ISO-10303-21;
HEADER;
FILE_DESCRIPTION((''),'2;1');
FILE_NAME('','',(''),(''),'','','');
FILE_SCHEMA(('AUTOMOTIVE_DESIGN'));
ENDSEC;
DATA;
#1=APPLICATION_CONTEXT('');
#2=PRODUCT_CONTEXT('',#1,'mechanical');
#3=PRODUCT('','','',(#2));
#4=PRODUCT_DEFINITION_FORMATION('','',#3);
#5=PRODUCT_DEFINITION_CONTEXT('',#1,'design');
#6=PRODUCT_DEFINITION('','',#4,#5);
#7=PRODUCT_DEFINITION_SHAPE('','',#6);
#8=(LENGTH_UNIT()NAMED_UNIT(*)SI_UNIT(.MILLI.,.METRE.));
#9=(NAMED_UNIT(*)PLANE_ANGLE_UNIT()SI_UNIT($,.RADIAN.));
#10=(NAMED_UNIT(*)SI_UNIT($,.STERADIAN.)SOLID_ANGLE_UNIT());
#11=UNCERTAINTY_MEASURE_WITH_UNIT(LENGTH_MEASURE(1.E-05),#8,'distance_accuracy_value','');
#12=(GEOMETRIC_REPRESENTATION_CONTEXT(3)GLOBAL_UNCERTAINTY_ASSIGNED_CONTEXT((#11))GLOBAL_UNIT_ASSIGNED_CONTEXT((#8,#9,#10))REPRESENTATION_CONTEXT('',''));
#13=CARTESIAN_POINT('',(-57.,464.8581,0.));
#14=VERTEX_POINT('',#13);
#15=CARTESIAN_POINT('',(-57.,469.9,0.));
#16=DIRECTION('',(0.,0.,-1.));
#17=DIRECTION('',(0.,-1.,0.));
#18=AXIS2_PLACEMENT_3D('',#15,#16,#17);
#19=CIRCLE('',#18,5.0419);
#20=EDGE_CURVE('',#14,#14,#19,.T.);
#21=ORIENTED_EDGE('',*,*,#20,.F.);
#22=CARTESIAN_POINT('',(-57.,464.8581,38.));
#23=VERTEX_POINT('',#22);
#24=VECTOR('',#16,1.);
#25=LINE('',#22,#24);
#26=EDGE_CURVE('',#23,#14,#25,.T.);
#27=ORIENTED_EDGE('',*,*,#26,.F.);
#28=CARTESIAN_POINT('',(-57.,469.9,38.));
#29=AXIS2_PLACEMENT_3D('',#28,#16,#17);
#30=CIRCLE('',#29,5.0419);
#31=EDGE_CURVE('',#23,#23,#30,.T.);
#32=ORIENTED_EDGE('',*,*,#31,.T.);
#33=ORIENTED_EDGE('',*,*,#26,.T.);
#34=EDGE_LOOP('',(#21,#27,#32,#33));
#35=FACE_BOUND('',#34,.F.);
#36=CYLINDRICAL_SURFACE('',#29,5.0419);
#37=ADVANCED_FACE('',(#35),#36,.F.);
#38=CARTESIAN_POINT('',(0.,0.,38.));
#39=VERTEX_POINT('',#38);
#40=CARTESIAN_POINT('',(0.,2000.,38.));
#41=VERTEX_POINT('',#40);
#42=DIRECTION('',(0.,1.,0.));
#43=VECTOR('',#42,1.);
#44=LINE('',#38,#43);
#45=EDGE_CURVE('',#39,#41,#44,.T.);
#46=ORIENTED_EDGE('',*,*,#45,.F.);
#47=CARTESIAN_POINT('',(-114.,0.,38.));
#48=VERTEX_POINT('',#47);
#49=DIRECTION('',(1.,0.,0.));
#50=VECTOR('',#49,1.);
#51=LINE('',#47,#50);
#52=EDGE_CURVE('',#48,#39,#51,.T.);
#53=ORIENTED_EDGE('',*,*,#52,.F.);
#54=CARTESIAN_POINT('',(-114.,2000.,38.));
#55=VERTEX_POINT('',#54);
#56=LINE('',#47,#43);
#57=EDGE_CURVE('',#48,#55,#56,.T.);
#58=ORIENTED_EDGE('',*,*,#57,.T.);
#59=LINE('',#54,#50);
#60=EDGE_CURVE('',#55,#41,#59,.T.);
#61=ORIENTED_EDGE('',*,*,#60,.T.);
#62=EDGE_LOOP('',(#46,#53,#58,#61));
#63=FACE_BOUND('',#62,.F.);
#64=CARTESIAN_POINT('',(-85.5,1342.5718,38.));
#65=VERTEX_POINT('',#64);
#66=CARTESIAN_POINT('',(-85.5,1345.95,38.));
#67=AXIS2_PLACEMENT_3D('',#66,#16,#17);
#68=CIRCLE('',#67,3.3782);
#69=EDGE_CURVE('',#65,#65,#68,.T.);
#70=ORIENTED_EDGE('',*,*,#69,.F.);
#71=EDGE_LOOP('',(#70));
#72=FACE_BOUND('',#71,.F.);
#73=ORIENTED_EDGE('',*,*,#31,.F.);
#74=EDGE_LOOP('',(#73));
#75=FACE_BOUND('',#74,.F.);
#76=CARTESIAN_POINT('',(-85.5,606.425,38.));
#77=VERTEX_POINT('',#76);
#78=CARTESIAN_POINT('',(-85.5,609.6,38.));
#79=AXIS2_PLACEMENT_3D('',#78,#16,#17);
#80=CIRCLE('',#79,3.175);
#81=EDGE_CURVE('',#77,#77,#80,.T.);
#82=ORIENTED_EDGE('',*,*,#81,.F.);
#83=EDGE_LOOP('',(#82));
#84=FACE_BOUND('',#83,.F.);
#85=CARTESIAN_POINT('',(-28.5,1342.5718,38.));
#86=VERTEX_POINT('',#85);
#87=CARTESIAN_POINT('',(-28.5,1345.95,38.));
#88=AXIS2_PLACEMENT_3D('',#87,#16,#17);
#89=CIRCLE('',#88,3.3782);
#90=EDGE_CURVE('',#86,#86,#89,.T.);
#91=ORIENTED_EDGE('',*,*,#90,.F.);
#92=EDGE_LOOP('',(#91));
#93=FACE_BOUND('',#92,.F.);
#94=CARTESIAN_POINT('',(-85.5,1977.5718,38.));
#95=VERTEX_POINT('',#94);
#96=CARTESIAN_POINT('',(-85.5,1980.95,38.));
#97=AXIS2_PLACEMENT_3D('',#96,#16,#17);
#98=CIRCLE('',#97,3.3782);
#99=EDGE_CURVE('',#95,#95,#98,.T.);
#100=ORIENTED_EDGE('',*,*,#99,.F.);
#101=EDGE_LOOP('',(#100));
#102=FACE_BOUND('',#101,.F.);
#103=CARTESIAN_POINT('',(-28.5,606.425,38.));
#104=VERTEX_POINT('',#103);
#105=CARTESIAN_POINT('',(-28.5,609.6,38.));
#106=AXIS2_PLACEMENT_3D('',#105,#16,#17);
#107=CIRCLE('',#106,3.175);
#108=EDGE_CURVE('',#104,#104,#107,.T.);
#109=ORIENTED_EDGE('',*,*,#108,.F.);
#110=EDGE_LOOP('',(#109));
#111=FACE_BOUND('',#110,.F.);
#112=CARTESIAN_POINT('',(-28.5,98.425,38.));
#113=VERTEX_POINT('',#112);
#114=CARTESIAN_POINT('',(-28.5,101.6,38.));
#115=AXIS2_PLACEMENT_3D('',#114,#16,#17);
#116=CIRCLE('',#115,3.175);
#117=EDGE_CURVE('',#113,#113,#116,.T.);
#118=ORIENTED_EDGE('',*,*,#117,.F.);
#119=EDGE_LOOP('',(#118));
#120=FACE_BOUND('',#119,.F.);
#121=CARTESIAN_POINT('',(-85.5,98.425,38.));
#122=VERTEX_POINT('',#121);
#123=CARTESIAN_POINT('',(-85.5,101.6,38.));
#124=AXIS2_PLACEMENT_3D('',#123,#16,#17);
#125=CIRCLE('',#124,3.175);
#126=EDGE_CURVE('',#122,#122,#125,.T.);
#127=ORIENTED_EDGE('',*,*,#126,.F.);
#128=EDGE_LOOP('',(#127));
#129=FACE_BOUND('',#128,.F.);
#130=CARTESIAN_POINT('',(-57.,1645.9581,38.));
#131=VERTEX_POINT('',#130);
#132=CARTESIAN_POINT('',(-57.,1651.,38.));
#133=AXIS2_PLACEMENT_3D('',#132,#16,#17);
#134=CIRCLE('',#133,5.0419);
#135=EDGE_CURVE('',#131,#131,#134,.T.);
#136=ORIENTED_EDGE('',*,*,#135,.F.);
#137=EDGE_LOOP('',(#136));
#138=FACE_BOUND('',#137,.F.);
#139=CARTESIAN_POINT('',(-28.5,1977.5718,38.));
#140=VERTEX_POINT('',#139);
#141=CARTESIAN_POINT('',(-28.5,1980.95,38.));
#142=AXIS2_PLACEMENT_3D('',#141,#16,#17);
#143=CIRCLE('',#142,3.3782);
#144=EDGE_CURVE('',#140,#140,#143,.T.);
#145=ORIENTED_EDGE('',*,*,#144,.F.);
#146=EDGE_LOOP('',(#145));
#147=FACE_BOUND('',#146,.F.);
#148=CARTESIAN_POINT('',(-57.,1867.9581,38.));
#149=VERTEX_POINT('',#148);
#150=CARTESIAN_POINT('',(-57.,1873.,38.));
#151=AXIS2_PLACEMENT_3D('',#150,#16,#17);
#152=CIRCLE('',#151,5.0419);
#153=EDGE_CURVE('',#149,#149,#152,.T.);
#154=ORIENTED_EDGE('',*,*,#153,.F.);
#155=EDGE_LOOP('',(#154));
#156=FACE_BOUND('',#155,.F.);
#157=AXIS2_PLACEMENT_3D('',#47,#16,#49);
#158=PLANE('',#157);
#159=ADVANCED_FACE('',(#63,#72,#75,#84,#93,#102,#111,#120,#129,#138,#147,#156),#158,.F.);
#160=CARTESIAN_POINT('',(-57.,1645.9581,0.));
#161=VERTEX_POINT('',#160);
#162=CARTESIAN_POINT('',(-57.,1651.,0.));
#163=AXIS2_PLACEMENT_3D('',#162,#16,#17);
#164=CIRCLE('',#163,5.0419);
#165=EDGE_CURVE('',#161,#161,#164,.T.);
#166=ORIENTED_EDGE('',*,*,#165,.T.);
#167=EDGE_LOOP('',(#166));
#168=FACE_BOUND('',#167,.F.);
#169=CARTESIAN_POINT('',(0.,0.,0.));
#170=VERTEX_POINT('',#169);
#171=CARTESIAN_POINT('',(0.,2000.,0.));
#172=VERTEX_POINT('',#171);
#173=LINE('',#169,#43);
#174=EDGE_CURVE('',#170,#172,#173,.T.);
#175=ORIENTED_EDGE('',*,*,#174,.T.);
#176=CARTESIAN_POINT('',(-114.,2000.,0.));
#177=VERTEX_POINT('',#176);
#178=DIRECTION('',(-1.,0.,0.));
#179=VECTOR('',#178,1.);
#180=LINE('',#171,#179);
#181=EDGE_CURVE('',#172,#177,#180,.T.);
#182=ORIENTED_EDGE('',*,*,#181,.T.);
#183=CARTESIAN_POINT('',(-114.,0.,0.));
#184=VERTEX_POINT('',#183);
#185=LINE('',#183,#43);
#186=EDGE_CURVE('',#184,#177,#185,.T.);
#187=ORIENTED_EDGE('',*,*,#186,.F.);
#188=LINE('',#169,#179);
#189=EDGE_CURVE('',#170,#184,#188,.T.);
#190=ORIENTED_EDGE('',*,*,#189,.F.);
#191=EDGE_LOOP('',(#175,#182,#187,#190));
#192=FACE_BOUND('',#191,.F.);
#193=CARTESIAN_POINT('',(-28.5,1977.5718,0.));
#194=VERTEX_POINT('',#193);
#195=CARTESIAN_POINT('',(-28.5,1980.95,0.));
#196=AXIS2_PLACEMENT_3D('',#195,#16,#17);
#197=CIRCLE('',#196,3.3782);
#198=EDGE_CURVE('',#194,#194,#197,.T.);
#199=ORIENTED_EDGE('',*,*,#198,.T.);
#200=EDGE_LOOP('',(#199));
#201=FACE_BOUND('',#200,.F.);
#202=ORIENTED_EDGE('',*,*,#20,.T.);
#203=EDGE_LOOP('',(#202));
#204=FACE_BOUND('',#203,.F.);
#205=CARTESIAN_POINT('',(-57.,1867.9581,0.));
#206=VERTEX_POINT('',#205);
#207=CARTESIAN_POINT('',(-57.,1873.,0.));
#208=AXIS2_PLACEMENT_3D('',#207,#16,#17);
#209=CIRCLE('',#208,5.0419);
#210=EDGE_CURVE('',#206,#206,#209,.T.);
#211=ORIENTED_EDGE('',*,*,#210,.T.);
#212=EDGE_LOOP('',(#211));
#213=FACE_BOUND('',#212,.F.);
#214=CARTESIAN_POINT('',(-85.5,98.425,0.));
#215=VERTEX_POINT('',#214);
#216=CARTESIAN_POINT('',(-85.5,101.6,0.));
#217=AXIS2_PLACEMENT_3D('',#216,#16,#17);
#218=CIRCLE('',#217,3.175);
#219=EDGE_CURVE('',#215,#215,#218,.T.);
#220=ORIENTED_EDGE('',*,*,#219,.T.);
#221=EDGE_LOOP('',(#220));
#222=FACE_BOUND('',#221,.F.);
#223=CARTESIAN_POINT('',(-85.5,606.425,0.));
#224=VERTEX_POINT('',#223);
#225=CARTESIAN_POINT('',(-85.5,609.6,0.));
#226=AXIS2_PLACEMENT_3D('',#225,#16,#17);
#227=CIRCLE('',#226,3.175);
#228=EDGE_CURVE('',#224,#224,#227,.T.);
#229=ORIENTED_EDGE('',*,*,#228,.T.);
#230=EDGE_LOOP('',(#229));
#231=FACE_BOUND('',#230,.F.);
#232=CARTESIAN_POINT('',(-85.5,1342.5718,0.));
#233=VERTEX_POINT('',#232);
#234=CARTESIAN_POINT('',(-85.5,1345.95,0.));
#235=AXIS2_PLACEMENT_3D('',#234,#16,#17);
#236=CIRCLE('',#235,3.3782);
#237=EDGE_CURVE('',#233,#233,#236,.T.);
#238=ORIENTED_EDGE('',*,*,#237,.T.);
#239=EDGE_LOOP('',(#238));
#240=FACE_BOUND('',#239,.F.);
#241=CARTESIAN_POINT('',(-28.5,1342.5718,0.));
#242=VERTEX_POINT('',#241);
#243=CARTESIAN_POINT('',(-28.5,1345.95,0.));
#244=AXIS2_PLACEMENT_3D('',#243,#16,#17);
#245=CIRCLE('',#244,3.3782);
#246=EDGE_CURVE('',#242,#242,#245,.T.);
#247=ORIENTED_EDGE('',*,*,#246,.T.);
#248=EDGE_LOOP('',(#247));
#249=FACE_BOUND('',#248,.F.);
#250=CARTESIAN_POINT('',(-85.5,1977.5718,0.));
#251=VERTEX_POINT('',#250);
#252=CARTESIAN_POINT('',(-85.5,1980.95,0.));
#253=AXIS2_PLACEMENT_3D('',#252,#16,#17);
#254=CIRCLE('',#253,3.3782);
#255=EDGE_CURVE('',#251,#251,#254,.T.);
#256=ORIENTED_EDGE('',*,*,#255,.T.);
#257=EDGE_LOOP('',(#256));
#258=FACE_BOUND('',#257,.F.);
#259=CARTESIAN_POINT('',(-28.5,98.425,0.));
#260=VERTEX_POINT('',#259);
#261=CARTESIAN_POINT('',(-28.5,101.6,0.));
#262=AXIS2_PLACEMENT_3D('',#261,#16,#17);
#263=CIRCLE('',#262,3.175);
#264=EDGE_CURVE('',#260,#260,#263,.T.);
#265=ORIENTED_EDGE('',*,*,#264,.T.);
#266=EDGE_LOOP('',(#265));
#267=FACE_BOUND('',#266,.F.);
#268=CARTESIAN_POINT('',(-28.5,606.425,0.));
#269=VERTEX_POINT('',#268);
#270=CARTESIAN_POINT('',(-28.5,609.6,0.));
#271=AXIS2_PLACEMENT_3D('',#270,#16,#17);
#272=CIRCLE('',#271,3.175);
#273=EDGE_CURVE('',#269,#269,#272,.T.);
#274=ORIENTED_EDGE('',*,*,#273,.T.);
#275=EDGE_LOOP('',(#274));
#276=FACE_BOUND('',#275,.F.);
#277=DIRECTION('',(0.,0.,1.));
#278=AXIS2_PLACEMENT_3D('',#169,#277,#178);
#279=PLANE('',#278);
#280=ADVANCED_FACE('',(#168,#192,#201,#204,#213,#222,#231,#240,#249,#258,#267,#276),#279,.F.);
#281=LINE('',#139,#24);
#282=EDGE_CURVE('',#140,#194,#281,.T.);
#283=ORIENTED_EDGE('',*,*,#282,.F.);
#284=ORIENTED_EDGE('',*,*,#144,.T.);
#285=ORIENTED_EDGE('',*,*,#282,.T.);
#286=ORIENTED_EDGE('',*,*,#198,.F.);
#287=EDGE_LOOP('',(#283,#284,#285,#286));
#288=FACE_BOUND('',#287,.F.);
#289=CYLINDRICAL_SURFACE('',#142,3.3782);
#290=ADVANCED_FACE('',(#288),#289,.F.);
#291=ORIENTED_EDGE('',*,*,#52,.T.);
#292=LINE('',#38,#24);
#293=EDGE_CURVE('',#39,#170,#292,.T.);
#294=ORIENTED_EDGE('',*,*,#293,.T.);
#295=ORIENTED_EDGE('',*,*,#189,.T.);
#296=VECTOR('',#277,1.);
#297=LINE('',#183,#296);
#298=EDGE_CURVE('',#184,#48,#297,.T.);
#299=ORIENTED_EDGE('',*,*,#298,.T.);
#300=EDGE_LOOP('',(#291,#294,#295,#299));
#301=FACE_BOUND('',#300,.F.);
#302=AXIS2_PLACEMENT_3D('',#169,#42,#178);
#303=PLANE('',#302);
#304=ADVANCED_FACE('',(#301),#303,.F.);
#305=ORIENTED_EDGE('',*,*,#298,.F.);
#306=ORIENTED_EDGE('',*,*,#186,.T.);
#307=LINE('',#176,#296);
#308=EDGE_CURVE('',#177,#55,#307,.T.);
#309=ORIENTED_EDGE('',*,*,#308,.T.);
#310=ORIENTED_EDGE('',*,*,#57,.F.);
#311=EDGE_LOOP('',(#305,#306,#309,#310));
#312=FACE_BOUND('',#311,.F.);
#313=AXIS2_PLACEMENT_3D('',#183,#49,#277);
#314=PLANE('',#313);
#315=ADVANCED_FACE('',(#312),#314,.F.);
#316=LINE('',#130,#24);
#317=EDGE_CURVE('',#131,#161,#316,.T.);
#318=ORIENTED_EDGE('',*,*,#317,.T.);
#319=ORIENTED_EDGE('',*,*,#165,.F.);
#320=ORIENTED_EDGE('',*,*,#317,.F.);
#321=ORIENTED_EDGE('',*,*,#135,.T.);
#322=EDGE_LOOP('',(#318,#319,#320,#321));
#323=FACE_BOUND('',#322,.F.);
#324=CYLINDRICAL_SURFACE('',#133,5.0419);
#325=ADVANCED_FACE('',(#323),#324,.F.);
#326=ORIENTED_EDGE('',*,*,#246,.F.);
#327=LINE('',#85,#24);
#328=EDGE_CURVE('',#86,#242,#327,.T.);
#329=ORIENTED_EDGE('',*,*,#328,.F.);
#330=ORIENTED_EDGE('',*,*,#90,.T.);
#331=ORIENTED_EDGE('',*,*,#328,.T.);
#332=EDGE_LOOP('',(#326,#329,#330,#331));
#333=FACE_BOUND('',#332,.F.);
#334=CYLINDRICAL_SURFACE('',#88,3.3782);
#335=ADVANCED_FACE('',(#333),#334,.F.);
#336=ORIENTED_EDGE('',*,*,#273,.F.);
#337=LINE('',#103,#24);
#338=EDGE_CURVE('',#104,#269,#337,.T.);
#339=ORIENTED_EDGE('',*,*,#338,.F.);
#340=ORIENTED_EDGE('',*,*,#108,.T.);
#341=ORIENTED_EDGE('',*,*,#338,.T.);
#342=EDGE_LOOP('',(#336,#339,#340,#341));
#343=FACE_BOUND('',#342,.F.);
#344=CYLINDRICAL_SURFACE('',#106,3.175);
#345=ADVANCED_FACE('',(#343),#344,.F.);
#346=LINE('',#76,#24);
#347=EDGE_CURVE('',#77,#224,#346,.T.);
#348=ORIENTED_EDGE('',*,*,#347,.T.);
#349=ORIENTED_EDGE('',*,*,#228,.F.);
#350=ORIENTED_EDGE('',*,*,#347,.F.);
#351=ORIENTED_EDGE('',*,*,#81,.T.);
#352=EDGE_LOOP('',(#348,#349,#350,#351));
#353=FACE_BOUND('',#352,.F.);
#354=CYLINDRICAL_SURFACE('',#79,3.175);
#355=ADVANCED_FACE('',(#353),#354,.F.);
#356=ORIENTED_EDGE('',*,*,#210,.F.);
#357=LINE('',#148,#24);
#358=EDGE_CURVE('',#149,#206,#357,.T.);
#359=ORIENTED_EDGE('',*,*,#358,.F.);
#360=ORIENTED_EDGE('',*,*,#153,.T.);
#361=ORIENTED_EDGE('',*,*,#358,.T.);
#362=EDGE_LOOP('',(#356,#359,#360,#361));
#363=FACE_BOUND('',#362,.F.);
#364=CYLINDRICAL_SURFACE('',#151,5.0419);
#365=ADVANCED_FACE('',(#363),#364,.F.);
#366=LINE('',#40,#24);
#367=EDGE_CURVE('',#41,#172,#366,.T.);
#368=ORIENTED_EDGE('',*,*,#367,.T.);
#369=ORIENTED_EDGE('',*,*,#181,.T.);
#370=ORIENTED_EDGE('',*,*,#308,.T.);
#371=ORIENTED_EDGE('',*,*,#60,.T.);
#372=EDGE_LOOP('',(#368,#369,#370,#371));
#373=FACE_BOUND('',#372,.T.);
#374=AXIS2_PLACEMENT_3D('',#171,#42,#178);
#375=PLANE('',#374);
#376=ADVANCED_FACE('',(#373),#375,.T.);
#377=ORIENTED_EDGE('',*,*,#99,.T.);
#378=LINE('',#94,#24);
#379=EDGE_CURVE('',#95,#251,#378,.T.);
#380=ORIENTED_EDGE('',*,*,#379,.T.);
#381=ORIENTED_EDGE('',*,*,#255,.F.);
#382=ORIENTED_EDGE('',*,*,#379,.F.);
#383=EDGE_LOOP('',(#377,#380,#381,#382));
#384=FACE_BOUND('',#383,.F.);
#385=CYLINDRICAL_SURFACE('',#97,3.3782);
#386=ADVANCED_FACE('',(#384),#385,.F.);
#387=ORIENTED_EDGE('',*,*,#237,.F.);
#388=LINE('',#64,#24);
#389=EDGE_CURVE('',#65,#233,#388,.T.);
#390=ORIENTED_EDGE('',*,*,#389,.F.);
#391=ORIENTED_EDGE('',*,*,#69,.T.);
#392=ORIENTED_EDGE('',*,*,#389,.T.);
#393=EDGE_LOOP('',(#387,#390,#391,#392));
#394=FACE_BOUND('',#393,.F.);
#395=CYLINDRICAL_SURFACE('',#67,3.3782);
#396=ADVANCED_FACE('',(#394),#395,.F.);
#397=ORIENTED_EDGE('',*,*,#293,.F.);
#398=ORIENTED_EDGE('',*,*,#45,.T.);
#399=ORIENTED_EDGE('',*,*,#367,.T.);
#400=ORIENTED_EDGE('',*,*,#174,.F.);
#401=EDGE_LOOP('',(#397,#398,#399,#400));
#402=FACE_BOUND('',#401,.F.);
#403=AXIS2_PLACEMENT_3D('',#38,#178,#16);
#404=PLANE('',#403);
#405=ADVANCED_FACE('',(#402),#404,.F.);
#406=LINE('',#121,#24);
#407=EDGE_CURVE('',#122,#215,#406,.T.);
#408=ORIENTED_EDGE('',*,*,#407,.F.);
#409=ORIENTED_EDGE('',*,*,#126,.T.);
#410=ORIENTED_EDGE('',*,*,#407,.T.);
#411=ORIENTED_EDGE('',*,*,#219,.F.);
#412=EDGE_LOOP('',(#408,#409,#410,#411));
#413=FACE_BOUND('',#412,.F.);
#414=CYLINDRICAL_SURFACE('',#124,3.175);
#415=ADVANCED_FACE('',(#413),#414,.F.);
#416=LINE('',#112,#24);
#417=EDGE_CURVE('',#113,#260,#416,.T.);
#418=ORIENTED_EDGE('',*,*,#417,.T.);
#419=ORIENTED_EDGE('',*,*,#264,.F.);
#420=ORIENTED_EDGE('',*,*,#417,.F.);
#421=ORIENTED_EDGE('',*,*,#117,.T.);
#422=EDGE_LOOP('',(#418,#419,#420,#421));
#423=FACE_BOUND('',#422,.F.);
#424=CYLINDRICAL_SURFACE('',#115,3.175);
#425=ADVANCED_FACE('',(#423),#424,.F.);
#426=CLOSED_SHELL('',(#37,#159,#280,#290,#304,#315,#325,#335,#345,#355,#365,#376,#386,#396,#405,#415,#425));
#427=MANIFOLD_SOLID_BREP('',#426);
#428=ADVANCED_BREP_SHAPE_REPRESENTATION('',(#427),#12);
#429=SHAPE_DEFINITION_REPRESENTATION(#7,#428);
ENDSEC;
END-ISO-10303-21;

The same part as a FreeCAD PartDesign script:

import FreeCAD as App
import Part
import Sketcher
from FreeCAD import Vector
Q = App.Units.Quantity

doc = App.newDocument("Part")
params = doc.addObject("Spreadsheet::Sheet", "Params")
for row, (alias, value) in enumerate([
    ("pad1_length", "2000 mm"),
    ("sketch2_diameter", "0.25 in"),
    ("hole_diameter", "0.25 in"),
    ("sketch3_diameter", "0.266 in"),
    ("hole2_diameter", "0.266 in"),
    ("sketch4_diameter", "0.397 in"),
    ("hole3_diameter", "0.397 in"),
], start=1):
    params.set(f"A{row}", alias)
    params.set(f"B{row}", "=" + value)
    params.setAlias(f"B{row}", alias)

body = doc.addObject("PartDesign::Body", "Body")

sketch1 = body.newObject("Sketcher::SketchObject", "Sketch")
sketch1.AttachmentSupport = (doc.getObject("XZ_Plane"), [""])
sketch1.MapMode = "FlatFace"
sketch1.addGeometry(Part.LineSegment(Vector(0, 38, 0), Vector(0, 0, 0)), False)
sketch1.addGeometry(Part.LineSegment(Vector(0, 0, 0), Vector(-114, 0, 0)), False)
sketch1.addGeometry(Part.LineSegment(Vector(-114, 0, 0), Vector(-114, 38, 0)), False)
sketch1.addGeometry(Part.LineSegment(Vector(-114, 38, 0), Vector(0, 38, 0)), False)
sketch1.addConstraint(Sketcher.Constraint("Coincident", 0, 2, 1, 1))
sketch1.addConstraint(Sketcher.Constraint("Coincident", 1, 2, 2, 1))
sketch1.addConstraint(Sketcher.Constraint("Coincident", 2, 2, 3, 1))
sketch1.addConstraint(Sketcher.Constraint("Coincident", 3, 2, 0, 1))
sketch1.addConstraint(Sketcher.Constraint("Vertical", 0))
sketch1.addConstraint(Sketcher.Constraint("Horizontal", 1))
sketch1.addConstraint(Sketcher.Constraint("Vertical", 2))
sketch1.addConstraint(Sketcher.Constraint("Horizontal", 3))
sketch1.addConstraint(Sketcher.Constraint("Coincident", 0, 2, -1, 1))
sketch1.addConstraint(Sketcher.Constraint("DistanceX", 1, 2, 1, 1, Q("4.4882 in")))
sketch1.addConstraint(Sketcher.Constraint("DistanceY", 0, 2, 0, 1, Q("38 mm")))
pad1 = body.newObject("PartDesign::Pad", "Pad")
pad1.Profile = sketch1
pad1.setExpression("Length", "Params.pad1_length")
pad1.Reversed = True

sketch2 = body.newObject("Sketcher::SketchObject", "Sketch001")
sketch2.AttachmentSupport = (doc.getObject("XY_Plane"), [""])
sketch2.MapMode = "FlatFace"
sketch2.AttachmentOffset = App.Placement(Vector(0, 0, 38), App.Rotation())
sketch2.addGeometry(Part.Circle(Vector(-85.5, 609.6, 0), Vector(0, 0, 1), 3.175), False)
sketch2.addGeometry(Part.Circle(Vector(-28.5, 609.6, 0), Vector(0, 0, 1), 3.175), False)
sketch2.addGeometry(Part.Circle(Vector(-85.5, 101.6, 0), Vector(0, 0, 1), 3.175), False)
sketch2.addGeometry(Part.Circle(Vector(-28.5, 101.6, 0), Vector(0, 0, 1), 3.175), False)
sketch2.addConstraint(Sketcher.Constraint("Equal", 0, 1))
sketch2.addConstraint(Sketcher.Constraint("Equal", 1, 2))
sketch2.addConstraint(Sketcher.Constraint("Equal", 2, 3))
sketch2.addConstraint(Sketcher.Constraint("Horizontal", 0, 3, 1, 3))
sketch2.addConstraint(Sketcher.Constraint("Horizontal", 2, 3, 3, 3))
sketch2.addConstraint(Sketcher.Constraint("Vertical", 0, 3, 2, 3))
sketch2.addConstraint(Sketcher.Constraint("Vertical", 1, 3, 3, 3))
sketch2.addConstraint(Sketcher.Constraint("Diameter", 0, Q("0.25 in")))
sketch2.addConstraint(Sketcher.Constraint("DistanceY", -1, 1, 0, 3, Q("24 in")))
sketch2.addConstraint(Sketcher.Constraint("DistanceY", -1, 1, 2, 3, Q("4 in")))
sketch2.addConstraint(Sketcher.Constraint("DistanceX", 0, 3, 1, 3, Q("2.2441 in")))
sketch2.addConstraint(Sketcher.Constraint("DistanceX", 0, 3, -1, 1, Q("85.5 mm")))
sketch2.setExpression("Constraints[7]", "Params.sketch2_diameter")
doc.recompute()
hole = body.newObject("PartDesign::Hole", "Hole")
hole.Profile = sketch2
hole.ThreadType = "None"
hole.setExpression("Diameter", "Params.hole_diameter")
hole.DepthType = "ThroughAll"

sketch3 = body.newObject("Sketcher::SketchObject", "Sketch002")
sketch3.AttachmentSupport = (doc.getObject("XY_Plane"), [""])
sketch3.MapMode = "FlatFace"
sketch3.AttachmentOffset = App.Placement(Vector(0, 0, 38), App.Rotation())
sketch3.addGeometry(Part.Circle(Vector(-85.5, 1980.95, 0), Vector(0, 0, 1), 3.3782), False)
sketch3.addGeometry(Part.Circle(Vector(-28.5, 1980.95, 0), Vector(0, 0, 1), 3.3782), False)
sketch3.addGeometry(Part.Circle(Vector(-28.5, 1345.95, 0), Vector(0, 0, 1), 3.3782), False)
sketch3.addGeometry(Part.Circle(Vector(-85.5, 1345.95, 0), Vector(0, 0, 1), 3.3782), False)
sketch3.addConstraint(Sketcher.Constraint("Equal", 0, 1))
sketch3.addConstraint(Sketcher.Constraint("Equal", 1, 2))
sketch3.addConstraint(Sketcher.Constraint("Equal", 2, 3))
sketch3.addConstraint(Sketcher.Constraint("Horizontal", 0, 3, 1, 3))
sketch3.addConstraint(Sketcher.Constraint("Horizontal", 2, 3, 3, 3))
sketch3.addConstraint(Sketcher.Constraint("Vertical", 1, 3, 2, 3))
sketch3.addConstraint(Sketcher.Constraint("Vertical", 0, 3, 3, 3))
sketch3.addConstraint(Sketcher.Constraint("Diameter", 0, Q("0.266 in")))
sketch3.addConstraint(Sketcher.Constraint("DistanceY", 2, 3, 1, 3, Q("25 in")))
sketch3.addConstraint(Sketcher.Constraint("DistanceX", 0, 3, 1, 3, Q("2.2441 in")))
sketch3.addConstraint(Sketcher.Constraint("DistanceX", 0, 3, -1, 1, Q("85.5 mm")))
sketch3.addConstraint(Sketcher.Constraint("DistanceY", -1, 1, 0, 3, Q("1980.95 mm")))
sketch3.setExpression("Constraints[7]", "Params.sketch3_diameter")
doc.recompute()
hole2 = body.newObject("PartDesign::Hole", "Hole001")
hole2.Profile = sketch3
hole2.ThreadType = "None"
hole2.setExpression("Diameter", "Params.hole2_diameter")
hole2.DepthType = "ThroughAll"

sketch4 = body.newObject("Sketcher::SketchObject", "Sketch003")
sketch4.AttachmentSupport = (doc.getObject("XY_Plane"), [""])
sketch4.MapMode = "FlatFace"
sketch4.AttachmentOffset = App.Placement(Vector(0, 0, 38), App.Rotation())
sketch4.addGeometry(Part.Circle(Vector(-57, 1873, 0), Vector(0, 0, 1), 5.0419), False)
sketch4.addGeometry(Part.Circle(Vector(-57, 1651, 0), Vector(0, 0, 1), 5.0419), False)
sketch4.addGeometry(Part.Circle(Vector(-57, 469.9, 0), Vector(0, 0, 1), 5.0419), False)
sketch4.addConstraint(Sketcher.Constraint("Equal", 0, 1))
sketch4.addConstraint(Sketcher.Constraint("Equal", 1, 2))
sketch4.addConstraint(Sketcher.Constraint("Vertical", 0, 3, 1, 3))
sketch4.addConstraint(Sketcher.Constraint("Vertical", 1, 3, 2, 3))
sketch4.addConstraint(Sketcher.Constraint("Diameter", 0, Q("0.397 in")))
sketch4.addConstraint(Sketcher.Constraint("DistanceY", -1, 1, 1, 3, Q("65 in")))
sketch4.addConstraint(Sketcher.Constraint("DistanceY", -1, 1, 2, 3, Q("18.5 in")))
sketch4.addConstraint(Sketcher.Constraint("DistanceX", 0, 3, -1, 1, Q("2.2441 in")))
sketch4.addConstraint(Sketcher.Constraint("DistanceY", -1, 1, 0, 3, Q("1873 mm")))
sketch4.setExpression("Constraints[4]", "Params.sketch4_diameter")
doc.recompute()
hole3 = body.newObject("PartDesign::Hole", "Hole002")
hole3.Profile = sketch4
hole3.ThreadType = "None"
hole3.setExpression("Diameter", "Params.hole3_diameter")
hole3.DepthType = "ThroughAll"

doc.recompute()
